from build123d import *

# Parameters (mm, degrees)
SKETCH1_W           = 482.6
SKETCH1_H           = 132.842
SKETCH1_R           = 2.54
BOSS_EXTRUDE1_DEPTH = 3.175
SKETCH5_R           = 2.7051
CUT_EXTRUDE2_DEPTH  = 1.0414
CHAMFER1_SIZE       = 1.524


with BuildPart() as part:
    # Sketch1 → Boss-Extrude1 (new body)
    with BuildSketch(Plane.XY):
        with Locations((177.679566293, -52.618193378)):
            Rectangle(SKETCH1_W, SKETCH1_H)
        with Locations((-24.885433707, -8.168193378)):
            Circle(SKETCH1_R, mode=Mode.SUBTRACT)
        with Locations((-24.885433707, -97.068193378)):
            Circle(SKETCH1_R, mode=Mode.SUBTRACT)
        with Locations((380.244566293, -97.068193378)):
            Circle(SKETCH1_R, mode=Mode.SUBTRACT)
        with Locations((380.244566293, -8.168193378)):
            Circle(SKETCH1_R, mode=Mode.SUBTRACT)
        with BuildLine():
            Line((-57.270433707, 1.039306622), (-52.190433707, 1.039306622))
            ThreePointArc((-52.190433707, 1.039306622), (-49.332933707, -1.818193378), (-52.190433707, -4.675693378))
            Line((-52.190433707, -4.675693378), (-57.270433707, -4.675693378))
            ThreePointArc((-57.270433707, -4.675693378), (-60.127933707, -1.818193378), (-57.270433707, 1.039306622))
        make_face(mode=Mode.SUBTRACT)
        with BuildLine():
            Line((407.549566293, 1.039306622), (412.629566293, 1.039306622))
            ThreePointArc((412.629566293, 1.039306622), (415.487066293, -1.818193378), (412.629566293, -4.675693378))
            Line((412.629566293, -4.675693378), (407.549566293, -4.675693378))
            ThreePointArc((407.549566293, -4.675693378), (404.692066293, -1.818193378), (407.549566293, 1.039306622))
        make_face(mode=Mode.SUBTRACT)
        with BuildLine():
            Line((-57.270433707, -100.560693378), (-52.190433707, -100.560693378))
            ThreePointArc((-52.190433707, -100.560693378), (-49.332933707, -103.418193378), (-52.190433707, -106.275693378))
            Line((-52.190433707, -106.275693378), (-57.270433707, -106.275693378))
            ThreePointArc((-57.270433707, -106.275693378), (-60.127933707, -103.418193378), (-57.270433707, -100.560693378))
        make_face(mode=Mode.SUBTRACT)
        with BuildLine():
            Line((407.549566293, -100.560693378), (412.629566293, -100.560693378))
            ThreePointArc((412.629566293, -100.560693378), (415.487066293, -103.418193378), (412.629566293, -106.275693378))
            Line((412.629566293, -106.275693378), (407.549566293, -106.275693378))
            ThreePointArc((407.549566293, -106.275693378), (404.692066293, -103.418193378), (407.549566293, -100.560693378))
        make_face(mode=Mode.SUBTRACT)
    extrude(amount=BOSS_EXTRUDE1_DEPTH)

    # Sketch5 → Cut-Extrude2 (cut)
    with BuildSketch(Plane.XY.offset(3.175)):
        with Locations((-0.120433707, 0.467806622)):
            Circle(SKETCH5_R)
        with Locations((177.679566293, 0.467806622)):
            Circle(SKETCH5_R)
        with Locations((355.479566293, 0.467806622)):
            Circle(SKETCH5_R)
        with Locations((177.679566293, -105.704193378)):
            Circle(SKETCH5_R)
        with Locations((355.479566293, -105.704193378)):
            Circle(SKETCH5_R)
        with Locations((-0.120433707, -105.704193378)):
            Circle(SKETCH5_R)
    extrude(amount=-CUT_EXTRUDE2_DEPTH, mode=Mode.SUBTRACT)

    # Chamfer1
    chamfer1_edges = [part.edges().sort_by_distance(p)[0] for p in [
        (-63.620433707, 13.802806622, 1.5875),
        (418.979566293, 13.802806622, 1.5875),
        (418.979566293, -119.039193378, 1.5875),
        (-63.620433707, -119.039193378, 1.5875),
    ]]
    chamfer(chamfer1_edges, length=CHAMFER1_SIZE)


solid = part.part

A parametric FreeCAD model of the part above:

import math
import FreeCAD as App
import Part
import Sketcher
Q = App.Units.Quantity


def edges_at(feature, points):
    """Names of the edges that pass closest to the given points."""
    edges = feature.Shape.Edges
    near = lambda p: min(range(len(edges)), key=lambda i: edges[i].distToShape(Part.Vertex(*p))[0])
    return sorted({f"Edge{near(p) + 1}" for p in points})


def add_polygon(sketch, points):
    """Adds a closed chain of lines whose ends are joined by coincident constraints."""
    first, n = sketch.GeometryCount, len(points)
    for a, b in zip(points, points[1:] + points[:1]):
        sketch.addGeometry(Part.LineSegment(App.Vector(*a, 0), App.Vector(*b, 0)), False)
    for i in range(n):
        sketch.addConstraint(Sketcher.Constraint("Coincident", first + i, 2, first + (i + 1) % n, 1))

doc = App.newDocument("Part")
body = doc.addObject("PartDesign::Body", "Body")

# Sketch on XY plane
sketch1 = doc.addObject("Sketcher::SketchObject", "Sketch")
body.addObject(sketch1)
sketch1.AttachmentSupport = (doc.XY_Plane, [""])
sketch1.MapMode = "FlatFace"
add_polygon(sketch1, [(-63.6, 13.8), (-63.6, -119), (419, -119), (419, 13.8)])  # lines 0-3
sketch1.addGeometry(Part.ArcOfCircle(Part.Circle(App.Vector(-57.3, -103.4, 0), App.Vector(0, 0, 1), 2.9), math.radians(90), math.radians(270)), False)  # 4
sketch1.addGeometry(Part.LineSegment(App.Vector(-57.3, -100.6, 0), App.Vector(-52.2, -100.6, 0)), False)  # 5
sketch1.addGeometry(Part.ArcOfCircle(Part.Circle(App.Vector(-52.2, -103.4, 0), App.Vector(0, 0, 1), 2.9), math.radians(-90), math.radians(90)), False)  # 6
sketch1.addGeometry(Part.LineSegment(App.Vector(-52.2, -106.3, 0), App.Vector(-57.3, -106.3, 0)), False)  # 7
sketch1.addGeometry(Part.Circle(App.Vector(-24.9, -97.1, 0), App.Vector(0, 0, 1), 2.5), False)  # 8
sketch1.addGeometry(Part.ArcOfCircle(Part.Circle(App.Vector(407.5, -103.4, 0), App.Vector(0, 0, 1), 2.9), math.radians(90), math.radians(270)), False)  # 9
sketch1.addGeometry(Part.LineSegment(App.Vector(407.5, -100.6, 0), App.Vector(412.6, -100.6, 0)), False)  # 10
sketch1.addGeometry(Part.ArcOfCircle(Part.Circle(App.Vector(412.6, -103.4, 0), App.Vector(0, 0, 1), 2.9), math.radians(-90), math.radians(90)), False)  # 11
sketch1.addGeometry(Part.LineSegment(App.Vector(412.6, -106.3, 0), App.Vector(407.5, -106.3, 0)), False)  # 12
sketch1.addGeometry(Part.Circle(App.Vector(380.2, -97.1, 0), App.Vector(0, 0, 1), 2.5), False)  # 13
sketch1.addGeometry(Part.Circle(App.Vector(-24.9, -8.2, 0), App.Vector(0, 0, 1), 2.5), False)  # 14
sketch1.addGeometry(Part.ArcOfCircle(Part.Circle(App.Vector(-57.3, -1.8, 0), App.Vector(0, 0, 1), 2.9), math.radians(90), math.radians(270)), False)  # 15
sketch1.addGeometry(Part.LineSegment(App.Vector(-57.3, 1, 0), App.Vector(-52.2, 1, 0)), False)  # 16
sketch1.addGeometry(Part.ArcOfCircle(Part.Circle(App.Vector(-52.2, -1.8, 0), App.Vector(0, 0, 1), 2.9), math.radians(-90), math.radians(90)), False)  # 17
sketch1.addGeometry(Part.LineSegment(App.Vector(-52.2, -4.7, 0), App.Vector(-57.3, -4.7, 0)), False)  # 18
sketch1.addGeometry(Part.Circle(App.Vector(380.2, -8.2, 0), App.Vector(0, 0, 1), 2.5), False)  # 19
sketch1.addGeometry(Part.ArcOfCircle(Part.Circle(App.Vector(407.5, -1.8, 0), App.Vector(0, 0, 1), 2.9), math.radians(90), math.radians(270)), False)  # 20
sketch1.addGeometry(Part.LineSegment(App.Vector(407.5, 1, 0), App.Vector(412.6, 1, 0)), False)  # 21
sketch1.addGeometry(Part.ArcOfCircle(Part.Circle(App.Vector(412.6, -1.8, 0), App.Vector(0, 0, 1), 2.9), math.radians(-90), math.radians(90)), False)  # 22
sketch1.addGeometry(Part.LineSegment(App.Vector(412.6, -4.7, 0), App.Vector(407.5, -4.7, 0)), False)  # 23
sketch1.addConstraint([
    Sketcher.Constraint("Tangent", 4, 1, 5, 1),
    Sketcher.Constraint("Tangent", 5, 2, 6, 2),
    Sketcher.Constraint("Tangent", 6, 1, 7, 1),
    Sketcher.Constraint("Tangent", 7, 2, 4, 2),
    Sketcher.Constraint("Tangent", 9, 1, 10, 1),
    Sketcher.Constraint("Tangent", 10, 2, 11, 2),
    Sketcher.Constraint("Tangent", 11, 1, 12, 1),
    Sketcher.Constraint("Tangent", 12, 2, 9, 2),
    Sketcher.Constraint("Tangent", 15, 1, 16, 1),
    Sketcher.Constraint("Tangent", 16, 2, 17, 2),
    Sketcher.Constraint("Tangent", 17, 1, 18, 1),
    Sketcher.Constraint("Tangent", 18, 2, 15, 2),
    Sketcher.Constraint("Tangent", 20, 1, 21, 1),
    Sketcher.Constraint("Tangent", 21, 2, 22, 2),
    Sketcher.Constraint("Tangent", 22, 1, 23, 1),
    Sketcher.Constraint("Tangent", 23, 2, 20, 2),
    Sketcher.Constraint("Vertical", 0),
    Sketcher.Constraint("Horizontal", 1),
    Sketcher.Constraint("Vertical", 2),
    Sketcher.Constraint("Horizontal", 3),
    Sketcher.Constraint("Horizontal", 5),
    Sketcher.Constraint("Horizontal", 7),
    Sketcher.Constraint("Horizontal", 10),
    Sketcher.Constraint("Horizontal", 12),
    Sketcher.Constraint("Horizontal", 16),
    Sketcher.Constraint("Horizontal", 18),
    Sketcher.Constraint("Horizontal", 21),
    Sketcher.Constraint("Horizontal", 23),
    Sketcher.Constraint("Equal", 6, 9),
    Sketcher.Constraint("Equal", 8, 13),
    Sketcher.Constraint("Equal", 13, 14),
    Sketcher.Constraint("Equal", 11, 15),
    Sketcher.Constraint("Equal", 14, 19),
    Sketcher.Constraint("Equal", 17, 20),
    Sketcher.Constraint("Horizontal", 6, 3, 9, 3),
    Sketcher.Constraint("Horizontal", 8, 3, 13, 3),
    Sketcher.Constraint("Horizontal", 14, 3, 19, 3),
    Sketcher.Constraint("Horizontal", 17, 3, 20, 3),
    Sketcher.Constraint("Vertical", 8, 3, 14, 3),
    Sketcher.Constraint("Vertical", 4, 3, 15, 3),
    Sketcher.Constraint("Vertical", 6, 3, 17, 3),
    Sketcher.Constraint("Vertical", 13, 3, 19, 3),
    Sketcher.Constraint("Vertical", 9, 3, 20, 3),
    Sketcher.Constraint("Vertical", 11, 3, 22, 3),
    Sketcher.Constraint("Equal", 7, 10),
    Sketcher.Constraint("Diameter", 8, Q("0.2 in")),
    Sketcher.Constraint("DistanceX", 1, 1, 1, 2, Q("19 in")),
    Sketcher.Constraint("DistanceX", 5, 1, 5, 2, Q("0.2 in")),
    Sketcher.Constraint("DistanceY", 4, 3, 15, 3, Q("4 in")),
    Sketcher.Constraint("DistanceY", 0, 2, 0, 1, Q("5.23 in")),
    Sketcher.Constraint("Radius", 4, Q("0.1125 in")),
    Sketcher.Constraint("DistanceX", 6, 3, 9, 3, Q("18.1 in")),
    Sketcher.Constraint("DistanceY", 8, 3, 14, 3, Q("3.5 in")),
    Sketcher.Constraint("DistanceY", 6, 3, 8, 3, Q("0.25 in")),
    Sketcher.Constraint("DistanceX", 8, 3, 13, 3, Q("15.95 in")),
    Sketcher.Constraint("DistanceX", 0, 2, 4, 3, Q("0.25 in")),
    Sketcher.Constraint("DistanceX", 6, 3, 8, 3, Q("1.075 in")),
    Sketcher.Constraint("DistanceY", 0, 2, 4, 3, Q("0.615 in")),
    Sketcher.Constraint("DistanceX", 4, 3, -1, 1, Q("57.270434 mm")),
    Sketcher.Constraint("DistanceY", 4, 3, -1, 1, Q("103.418193 mm")),
])
pad1 = doc.addObject("PartDesign::Pad", "Pad")
body.addObject(pad1)
pad1.Profile = sketch1
pad1.Length = Q("0.125 in")

# Sketch on XY plane
sketch2 = doc.addObject("Sketcher::SketchObject", "Sketch001")
body.addObject(sketch2)
sketch2.AttachmentSupport = (doc.XY_Plane, [""])
sketch2.MapMode = "FlatFace"
sketch2.AttachmentOffset = App.Placement(App.Vector(0, 0, 0.125 * 25.4), App.Rotation())
sketch2.addGeometry([
    Part.Circle(App.Vector(-0.1, 0.5, 0), App.Vector(0, 0, 1), 2.7),  # 0
    Part.Circle(App.Vector(177.7, 0.5, 0), App.Vector(0, 0, 1), 2.7),  # 1
    Part.Circle(App.Vector(355.5, 0.5, 0), App.Vector(0, 0, 1), 2.7),  # 2
    Part.Circle(App.Vector(177.7, -105.7, 0), App.Vector(0, 0, 1), 2.7),  # 3
    Part.Circle(App.Vector(355.5, -105.7, 0), App.Vector(0, 0, 1), 2.7),  # 4
    Part.Circle(App.Vector(-0.1, -105.7, 0), App.Vector(0, 0, 1), 2.7),  # 5
], False)
sketch2.addConstraint([
    Sketcher.Constraint("Equal", 0, 1),
    Sketcher.Constraint("Equal", 1, 2),
    Sketcher.Constraint("Equal", 2, 3),
    Sketcher.Constraint("Equal", 3, 4),
    Sketcher.Constraint("Equal", 4, 5),
    Sketcher.Constraint("Horizontal", 0, 3, 1, 3),
    Sketcher.Constraint("Horizontal", 1, 3, 2, 3),
    Sketcher.Constraint("Horizontal", 3, 3, 4, 3),
    Sketcher.Constraint("Horizontal", 4, 3, 5, 3),
    Sketcher.Constraint("Vertical", 1, 3, 3, 3),
    Sketcher.Constraint("Vertical", 2, 3, 4, 3),
    Sketcher.Constraint("Vertical", 0, 3, 5, 3),
    Sketcher.Constraint("Diameter", 0, Q("0.213 in")),
    Sketcher.Constraint("DistanceX", 0, 3, 1, 3, Q("7 in")),
    Sketcher.Constraint("DistanceX", 1, 3, 2, 3, Q("7 in")),
    Sketcher.Constraint("DistanceY", 3, 3, 1, 3, Q("4.18 in")),
    Sketcher.Constraint("DistanceX", 0, 3, -1, 1, Q("0.120434 mm")),
    Sketcher.Constraint("DistanceY", -1, 1, 0, 3, Q("0.467807 mm")),
])
pocket1 = doc.addObject("PartDesign::Pocket", "Pocket")
body.addObject(pocket1)
pocket1.Profile = sketch2
pocket1.Length = Q("0.041 in")
doc.recompute()

chamfer = doc.addObject("PartDesign::Chamfer", "Chamfer")
body.addObject(chamfer)
chamfer.Base = (pocket1, edges_at(pocket1, [
    (-63.62, 13.803, 1.587),
    (418.98, 13.803, 1.587),
    (418.98, -119.039, 1.587),
    (-63.62, -119.039, 1.587),
]))
chamfer.Size = Q("0.06 in")

doc.recompute()
